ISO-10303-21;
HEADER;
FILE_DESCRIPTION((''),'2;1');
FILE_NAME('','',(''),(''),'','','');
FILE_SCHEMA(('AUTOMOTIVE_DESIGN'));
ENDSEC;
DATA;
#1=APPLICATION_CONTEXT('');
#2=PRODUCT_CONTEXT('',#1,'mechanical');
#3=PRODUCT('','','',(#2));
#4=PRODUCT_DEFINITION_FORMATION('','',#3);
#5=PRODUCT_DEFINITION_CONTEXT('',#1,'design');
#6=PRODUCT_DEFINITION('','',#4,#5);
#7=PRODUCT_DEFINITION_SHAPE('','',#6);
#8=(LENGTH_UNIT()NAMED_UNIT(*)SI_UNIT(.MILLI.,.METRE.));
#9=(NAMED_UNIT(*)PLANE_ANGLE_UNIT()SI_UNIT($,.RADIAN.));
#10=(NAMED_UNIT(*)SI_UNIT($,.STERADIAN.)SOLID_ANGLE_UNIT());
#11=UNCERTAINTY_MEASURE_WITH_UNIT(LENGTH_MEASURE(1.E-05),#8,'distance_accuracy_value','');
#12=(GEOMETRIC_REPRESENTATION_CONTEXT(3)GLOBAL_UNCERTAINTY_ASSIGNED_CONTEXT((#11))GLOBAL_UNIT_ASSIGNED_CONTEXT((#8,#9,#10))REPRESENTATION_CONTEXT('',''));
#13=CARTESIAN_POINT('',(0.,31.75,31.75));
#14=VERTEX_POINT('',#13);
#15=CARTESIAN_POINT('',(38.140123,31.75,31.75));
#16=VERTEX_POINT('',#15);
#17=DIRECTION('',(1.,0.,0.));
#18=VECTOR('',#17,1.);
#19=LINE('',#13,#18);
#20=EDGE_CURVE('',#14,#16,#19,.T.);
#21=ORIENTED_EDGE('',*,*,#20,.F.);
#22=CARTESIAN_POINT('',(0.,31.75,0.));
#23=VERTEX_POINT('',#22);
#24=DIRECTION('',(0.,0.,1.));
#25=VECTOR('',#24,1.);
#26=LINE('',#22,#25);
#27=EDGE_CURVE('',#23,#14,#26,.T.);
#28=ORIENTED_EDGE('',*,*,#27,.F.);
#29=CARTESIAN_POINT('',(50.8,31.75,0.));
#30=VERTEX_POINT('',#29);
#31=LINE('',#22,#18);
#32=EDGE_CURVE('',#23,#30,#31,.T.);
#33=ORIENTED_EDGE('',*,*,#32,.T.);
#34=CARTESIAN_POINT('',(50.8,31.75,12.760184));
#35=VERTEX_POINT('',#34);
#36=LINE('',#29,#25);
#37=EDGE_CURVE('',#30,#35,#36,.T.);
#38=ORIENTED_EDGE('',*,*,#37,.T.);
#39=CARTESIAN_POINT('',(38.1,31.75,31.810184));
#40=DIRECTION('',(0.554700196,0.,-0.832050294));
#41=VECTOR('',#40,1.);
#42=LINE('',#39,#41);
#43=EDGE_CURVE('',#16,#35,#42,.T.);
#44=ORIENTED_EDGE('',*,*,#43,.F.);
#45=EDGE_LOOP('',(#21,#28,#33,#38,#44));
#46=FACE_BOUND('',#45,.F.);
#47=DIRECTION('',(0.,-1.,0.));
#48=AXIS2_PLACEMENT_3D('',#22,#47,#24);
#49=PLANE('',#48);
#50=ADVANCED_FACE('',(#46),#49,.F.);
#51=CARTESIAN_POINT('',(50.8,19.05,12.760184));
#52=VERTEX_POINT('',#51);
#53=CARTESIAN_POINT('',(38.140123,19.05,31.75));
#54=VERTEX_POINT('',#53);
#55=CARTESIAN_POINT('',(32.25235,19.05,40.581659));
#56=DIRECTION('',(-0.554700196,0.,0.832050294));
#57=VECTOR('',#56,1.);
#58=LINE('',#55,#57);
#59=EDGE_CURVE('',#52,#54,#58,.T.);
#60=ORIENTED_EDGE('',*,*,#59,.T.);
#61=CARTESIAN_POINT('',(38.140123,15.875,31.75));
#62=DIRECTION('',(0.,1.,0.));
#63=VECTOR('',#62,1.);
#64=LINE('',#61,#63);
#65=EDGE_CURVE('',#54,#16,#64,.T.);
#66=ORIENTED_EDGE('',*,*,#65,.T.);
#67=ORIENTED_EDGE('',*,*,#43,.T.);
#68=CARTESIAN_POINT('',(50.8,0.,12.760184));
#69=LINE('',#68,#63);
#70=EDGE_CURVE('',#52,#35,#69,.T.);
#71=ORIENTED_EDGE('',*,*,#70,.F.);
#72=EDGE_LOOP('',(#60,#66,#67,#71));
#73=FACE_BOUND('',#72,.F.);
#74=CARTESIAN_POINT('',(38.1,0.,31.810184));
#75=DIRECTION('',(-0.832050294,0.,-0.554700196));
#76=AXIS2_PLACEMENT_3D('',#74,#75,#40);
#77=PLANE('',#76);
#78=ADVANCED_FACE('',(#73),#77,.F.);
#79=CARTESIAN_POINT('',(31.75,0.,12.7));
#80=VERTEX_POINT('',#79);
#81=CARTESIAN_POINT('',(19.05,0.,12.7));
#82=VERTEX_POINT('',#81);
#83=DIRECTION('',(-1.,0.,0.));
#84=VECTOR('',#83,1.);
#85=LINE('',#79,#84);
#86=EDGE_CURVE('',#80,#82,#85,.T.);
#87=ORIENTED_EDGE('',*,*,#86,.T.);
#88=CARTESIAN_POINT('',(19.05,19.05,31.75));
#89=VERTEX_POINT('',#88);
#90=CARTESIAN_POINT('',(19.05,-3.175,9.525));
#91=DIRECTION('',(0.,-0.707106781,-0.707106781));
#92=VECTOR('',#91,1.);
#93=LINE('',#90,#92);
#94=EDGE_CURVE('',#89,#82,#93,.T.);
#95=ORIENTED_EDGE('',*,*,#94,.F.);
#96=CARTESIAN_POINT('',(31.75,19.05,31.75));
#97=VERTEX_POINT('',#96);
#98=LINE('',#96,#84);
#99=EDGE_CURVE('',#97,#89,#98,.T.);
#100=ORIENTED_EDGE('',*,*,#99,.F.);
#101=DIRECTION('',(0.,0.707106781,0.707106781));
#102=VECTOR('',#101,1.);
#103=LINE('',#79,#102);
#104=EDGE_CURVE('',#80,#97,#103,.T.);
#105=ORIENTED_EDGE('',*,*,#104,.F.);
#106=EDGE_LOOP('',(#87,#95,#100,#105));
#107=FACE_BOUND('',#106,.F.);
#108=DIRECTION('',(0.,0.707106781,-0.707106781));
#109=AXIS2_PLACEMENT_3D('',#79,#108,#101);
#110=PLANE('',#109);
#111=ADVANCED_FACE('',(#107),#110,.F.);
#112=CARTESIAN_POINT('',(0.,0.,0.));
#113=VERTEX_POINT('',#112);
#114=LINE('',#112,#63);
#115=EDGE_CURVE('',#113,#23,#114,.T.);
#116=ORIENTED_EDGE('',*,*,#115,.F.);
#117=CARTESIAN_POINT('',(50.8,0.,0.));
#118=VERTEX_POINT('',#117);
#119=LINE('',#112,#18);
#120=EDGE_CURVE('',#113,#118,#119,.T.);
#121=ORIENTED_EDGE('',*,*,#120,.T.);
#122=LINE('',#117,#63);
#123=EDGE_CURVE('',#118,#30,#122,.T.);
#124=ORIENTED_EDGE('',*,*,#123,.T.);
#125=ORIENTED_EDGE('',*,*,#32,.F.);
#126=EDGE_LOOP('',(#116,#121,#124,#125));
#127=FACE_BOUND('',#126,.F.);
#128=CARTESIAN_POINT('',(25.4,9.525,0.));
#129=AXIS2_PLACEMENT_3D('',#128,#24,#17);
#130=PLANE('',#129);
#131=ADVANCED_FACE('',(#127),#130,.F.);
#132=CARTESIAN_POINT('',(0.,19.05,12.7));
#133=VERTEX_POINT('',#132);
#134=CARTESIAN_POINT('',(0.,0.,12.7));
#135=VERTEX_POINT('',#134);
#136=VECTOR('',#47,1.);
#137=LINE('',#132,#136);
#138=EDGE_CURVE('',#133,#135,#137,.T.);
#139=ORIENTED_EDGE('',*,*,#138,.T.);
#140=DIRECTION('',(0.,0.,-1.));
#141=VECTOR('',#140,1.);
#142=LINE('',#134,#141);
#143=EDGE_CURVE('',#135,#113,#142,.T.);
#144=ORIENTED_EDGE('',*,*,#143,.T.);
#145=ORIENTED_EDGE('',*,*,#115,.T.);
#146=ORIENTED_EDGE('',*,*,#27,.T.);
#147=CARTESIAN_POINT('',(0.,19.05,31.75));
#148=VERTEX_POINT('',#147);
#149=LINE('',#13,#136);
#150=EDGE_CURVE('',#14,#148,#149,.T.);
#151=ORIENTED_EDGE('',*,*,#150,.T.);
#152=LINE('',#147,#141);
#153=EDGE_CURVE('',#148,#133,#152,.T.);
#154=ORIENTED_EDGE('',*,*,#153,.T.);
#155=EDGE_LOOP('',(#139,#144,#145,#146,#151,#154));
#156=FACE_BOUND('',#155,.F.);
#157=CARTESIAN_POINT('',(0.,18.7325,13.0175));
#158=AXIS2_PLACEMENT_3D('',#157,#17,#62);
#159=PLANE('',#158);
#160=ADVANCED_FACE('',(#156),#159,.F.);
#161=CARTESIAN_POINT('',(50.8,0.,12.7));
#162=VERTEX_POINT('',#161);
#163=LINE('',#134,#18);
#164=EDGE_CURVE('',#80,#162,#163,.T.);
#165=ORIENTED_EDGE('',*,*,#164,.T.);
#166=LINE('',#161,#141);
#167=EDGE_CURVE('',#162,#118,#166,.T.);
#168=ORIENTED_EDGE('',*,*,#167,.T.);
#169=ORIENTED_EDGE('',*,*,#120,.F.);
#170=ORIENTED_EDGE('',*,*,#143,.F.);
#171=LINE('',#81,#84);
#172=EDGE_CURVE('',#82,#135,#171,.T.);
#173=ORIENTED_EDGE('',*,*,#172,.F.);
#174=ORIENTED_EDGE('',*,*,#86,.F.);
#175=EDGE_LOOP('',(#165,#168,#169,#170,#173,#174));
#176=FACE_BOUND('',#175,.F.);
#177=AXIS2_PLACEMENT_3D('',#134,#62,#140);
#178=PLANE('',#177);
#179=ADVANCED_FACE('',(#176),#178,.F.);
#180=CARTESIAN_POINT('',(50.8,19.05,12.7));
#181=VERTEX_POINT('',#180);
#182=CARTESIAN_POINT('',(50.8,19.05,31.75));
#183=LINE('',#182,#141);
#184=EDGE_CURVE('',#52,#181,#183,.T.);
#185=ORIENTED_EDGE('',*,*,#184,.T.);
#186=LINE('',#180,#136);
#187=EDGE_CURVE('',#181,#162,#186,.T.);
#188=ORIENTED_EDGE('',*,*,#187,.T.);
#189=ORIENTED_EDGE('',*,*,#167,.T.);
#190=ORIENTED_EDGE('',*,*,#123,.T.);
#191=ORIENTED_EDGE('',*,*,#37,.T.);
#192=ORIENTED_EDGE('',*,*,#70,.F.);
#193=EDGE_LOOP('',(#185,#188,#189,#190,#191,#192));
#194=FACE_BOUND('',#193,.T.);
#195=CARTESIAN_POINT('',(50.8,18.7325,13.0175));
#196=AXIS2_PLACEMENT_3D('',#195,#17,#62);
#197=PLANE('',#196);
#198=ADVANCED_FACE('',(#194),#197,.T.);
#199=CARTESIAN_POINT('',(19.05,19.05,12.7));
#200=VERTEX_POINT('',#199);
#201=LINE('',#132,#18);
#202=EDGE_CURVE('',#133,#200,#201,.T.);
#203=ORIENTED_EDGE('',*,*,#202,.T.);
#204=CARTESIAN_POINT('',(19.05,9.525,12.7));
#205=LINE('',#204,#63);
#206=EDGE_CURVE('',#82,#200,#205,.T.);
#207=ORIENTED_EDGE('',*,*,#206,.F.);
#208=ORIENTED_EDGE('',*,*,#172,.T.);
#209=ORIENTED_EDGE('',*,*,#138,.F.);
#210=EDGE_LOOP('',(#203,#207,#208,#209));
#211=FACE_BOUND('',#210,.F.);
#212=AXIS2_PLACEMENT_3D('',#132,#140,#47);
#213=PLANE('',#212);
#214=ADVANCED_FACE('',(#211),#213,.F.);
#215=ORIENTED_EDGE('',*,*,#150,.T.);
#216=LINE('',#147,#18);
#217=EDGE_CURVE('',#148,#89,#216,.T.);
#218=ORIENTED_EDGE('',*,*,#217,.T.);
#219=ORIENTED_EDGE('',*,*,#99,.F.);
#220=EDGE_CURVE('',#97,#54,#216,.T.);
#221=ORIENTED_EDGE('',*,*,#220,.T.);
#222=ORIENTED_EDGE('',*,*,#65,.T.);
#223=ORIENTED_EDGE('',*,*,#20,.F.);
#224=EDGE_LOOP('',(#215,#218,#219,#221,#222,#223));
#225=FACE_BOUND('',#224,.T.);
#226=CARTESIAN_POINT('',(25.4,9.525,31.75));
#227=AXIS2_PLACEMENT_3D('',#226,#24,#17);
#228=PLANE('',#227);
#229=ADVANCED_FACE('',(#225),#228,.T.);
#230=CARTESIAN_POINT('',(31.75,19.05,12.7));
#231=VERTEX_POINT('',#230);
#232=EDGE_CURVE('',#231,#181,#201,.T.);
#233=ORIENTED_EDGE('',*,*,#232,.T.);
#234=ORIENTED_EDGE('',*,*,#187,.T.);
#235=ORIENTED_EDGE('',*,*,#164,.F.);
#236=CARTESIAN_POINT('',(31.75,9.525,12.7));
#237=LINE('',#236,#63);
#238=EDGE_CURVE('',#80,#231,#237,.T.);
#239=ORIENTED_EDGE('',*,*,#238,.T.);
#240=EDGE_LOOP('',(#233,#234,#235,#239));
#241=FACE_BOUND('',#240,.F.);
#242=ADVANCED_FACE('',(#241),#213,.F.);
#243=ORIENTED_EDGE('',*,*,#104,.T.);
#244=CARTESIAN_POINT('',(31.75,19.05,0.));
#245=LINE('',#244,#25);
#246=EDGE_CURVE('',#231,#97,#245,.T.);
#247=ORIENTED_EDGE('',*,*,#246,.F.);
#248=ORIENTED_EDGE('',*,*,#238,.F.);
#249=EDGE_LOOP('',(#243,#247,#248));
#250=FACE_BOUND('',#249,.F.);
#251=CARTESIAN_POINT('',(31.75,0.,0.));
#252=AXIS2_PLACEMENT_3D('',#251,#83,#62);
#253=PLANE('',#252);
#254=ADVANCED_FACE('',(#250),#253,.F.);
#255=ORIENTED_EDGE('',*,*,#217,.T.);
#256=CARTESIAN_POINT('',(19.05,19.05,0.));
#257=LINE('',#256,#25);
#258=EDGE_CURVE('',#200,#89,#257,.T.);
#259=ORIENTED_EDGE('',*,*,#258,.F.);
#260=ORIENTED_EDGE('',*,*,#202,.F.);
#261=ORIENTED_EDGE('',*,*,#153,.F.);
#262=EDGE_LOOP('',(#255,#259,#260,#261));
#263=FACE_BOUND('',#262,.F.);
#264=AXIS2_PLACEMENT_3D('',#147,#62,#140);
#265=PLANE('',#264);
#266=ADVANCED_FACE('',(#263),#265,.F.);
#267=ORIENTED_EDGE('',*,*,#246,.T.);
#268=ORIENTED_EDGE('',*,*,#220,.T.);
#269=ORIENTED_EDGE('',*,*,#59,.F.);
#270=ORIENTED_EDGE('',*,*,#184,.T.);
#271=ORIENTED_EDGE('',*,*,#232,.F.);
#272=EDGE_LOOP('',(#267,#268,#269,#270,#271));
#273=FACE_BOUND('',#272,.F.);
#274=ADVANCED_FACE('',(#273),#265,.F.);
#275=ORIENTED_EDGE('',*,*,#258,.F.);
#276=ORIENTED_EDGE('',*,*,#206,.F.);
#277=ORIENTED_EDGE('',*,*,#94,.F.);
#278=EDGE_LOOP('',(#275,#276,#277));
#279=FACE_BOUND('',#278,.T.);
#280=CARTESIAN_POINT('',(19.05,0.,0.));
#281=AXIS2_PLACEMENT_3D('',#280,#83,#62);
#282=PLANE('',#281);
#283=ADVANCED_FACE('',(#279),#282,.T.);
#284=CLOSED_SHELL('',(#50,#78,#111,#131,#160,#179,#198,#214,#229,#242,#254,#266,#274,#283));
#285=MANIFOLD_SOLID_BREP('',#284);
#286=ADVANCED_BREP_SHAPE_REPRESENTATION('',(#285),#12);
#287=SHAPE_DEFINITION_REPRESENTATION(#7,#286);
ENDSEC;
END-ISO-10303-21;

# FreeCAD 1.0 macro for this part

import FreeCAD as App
import Part
import Sketcher

V = App.Vector
Q = App.Units.Quantity

doc = App.newDocument("Part")
body = doc.addObject("PartDesign::Body", "Body")

sketch1 = doc.addObject("Sketcher::SketchObject", "Sketch")
body.addObject(sketch1)
sketch1.AttachmentSupport = (doc.YZ_Plane, [""])
sketch1.MapMode = "FlatFace"
sketch1.addGeometry([
    Part.LineSegment(V(0, 13, 0), V(0, 0, 0)),
    Part.LineSegment(V(0, 0, 0), V(32, 0, 0)),
    Part.LineSegment(V(32, 0, 0), V(32, 32, 0)),
    Part.LineSegment(V(32, 32, 0), V(19, 32, 0)),
    Part.LineSegment(V(19, 32, 0), V(19, 13, 0)),
    Part.LineSegment(V(19, 13, 0), V(0, 13, 0)),
], False)
sketch1.addConstraint([
    Sketcher.Constraint("Coincident", 0, 2, 1, 1),
    Sketcher.Constraint("Coincident", 1, 2, 2, 1),
    Sketcher.Constraint("Coincident", 2, 2, 3, 1),
    Sketcher.Constraint("Coincident", 3, 2, 4, 1),
    Sketcher.Constraint("Coincident", 4, 2, 5, 1),
    Sketcher.Constraint("Coincident", 5, 2, 0, 1),
    Sketcher.Constraint("Vertical", 0),
    Sketcher.Constraint("Horizontal", 1),
    Sketcher.Constraint("Vertical", 2),
    Sketcher.Constraint("Horizontal", 3),
    Sketcher.Constraint("Vertical", 4),
    Sketcher.Constraint("Horizontal", 5),
    Sketcher.Constraint("Coincident", 0, 2, -1, 1),
    Sketcher.Constraint("Equal", 3, 0),
    Sketcher.Constraint("Equal", 1, 2),
    Sketcher.Constraint("DistanceX", 3, 2, 3, 1, Q("0.5 in")),
    Sketcher.Constraint("DistanceX", 1, 1, 1, 2, Q("1.25 in")),
])
pad1 = doc.addObject("PartDesign::Pad", "Pad")
body.addObject(pad1)
pad1.Profile = sketch1
pad1.Length = Q("2 in")

sketch2 = doc.addObject("Sketcher::SketchObject", "Sketch001")
body.addObject(sketch2)
sketch2.AttachmentSupport = (doc.XZ_Plane, [""])
sketch2.MapMode = "FlatFace"
sketch2.addGeometry([
    Part.LineSegment(V(51, 13, 0), V(51, 32, 0)),
    Part.LineSegment(V(51, 32, 0), V(38, 32, 0)),
    Part.LineSegment(V(38, 32, 0), V(51, 13, 0)),
], False)
sketch2.addConstraint([
    Sketcher.Constraint("Coincident", 0, 2, 1, 1),
    Sketcher.Constraint("Coincident", 1, 2, 2, 1),
    Sketcher.Constraint("Coincident", 2, 2, 0, 1),
    Sketcher.Constraint("Vertical", 0),
    Sketcher.Constraint("Horizontal", 1),
    Sketcher.Constraint("DistanceX", 1, 2, 1, 1, Q("0.5 in")),
    Sketcher.Constraint("DistanceX", -1, 1, 0, 2, Q("2 in")),
    Sketcher.Constraint("DistanceY", 0, 1, 0, 2, Q("0.75 in")),
    Sketcher.Constraint("DistanceY", -1, 1, 0, 2, 31.810184),
])
pocket1 = doc.addObject("PartDesign::Pocket", "Pocket")
body.addObject(pocket1)
pocket1.Profile = sketch2
pocket1.Length = Q("1.25 in")

sketch3 = doc.addObject("Sketcher::SketchObject", "Sketch002")
body.addObject(sketch3)
sketch3.AttachmentSupport = (doc.XY_Plane, [""])
sketch3.MapMode = "FlatFace"
sketch3.addGeometry([
    Part.LineSegment(V(19, 19, 0), V(19, 0, 0)),
    Part.LineSegment(V(19, 0, 0), V(32, 0, 0)),
    Part.LineSegment(V(32, 0, 0), V(32, 19, 0)),
    Part.LineSegment(V(32, 19, 0), V(19, 19, 0)),
], False)
sketch3.addConstraint([
    Sketcher.Constraint("Coincident", 0, 2, 1, 1),
    Sketcher.Constraint("Coincident", 1, 2, 2, 1),
    Sketcher.Constraint("Coincident", 2, 2, 3, 1),
    Sketcher.Constraint("Coincident", 3, 2, 0, 1),
    Sketcher.Constraint("Vertical", 0),
    Sketcher.Constraint("Horizontal", 1),
    Sketcher.Constraint("Vertical", 2),
    Sketcher.Constraint("Horizontal", 3),
    Sketcher.Constraint("PointOnObject", 0, 2, -1),
    Sketcher.Constraint("DistanceX", 1, 1, 1, 2, Q("0.5 in")),
    Sketcher.Constraint("DistanceY", 0, 2, 0, 1, Q("0.75 in")),
    Sketcher.Constraint("DistanceX", -1, 1, 0, 2, Q("0.75 in")),
])
pad2 = doc.addObject("PartDesign::Pad", "Pad001")
body.addObject(pad2)
pad2.Profile = sketch3
pad2.Length = Q("1.25 in")

sketch4 = doc.addObject("Sketcher::SketchObject", "Sketch003")
body.addObject(sketch4)
sketch4.AttachmentSupport = (doc.YZ_Plane, [""])
sketch4.MapMode = "FlatFace"
sketch4.AttachmentOffset = App.Placement(V(0, 0, 1.25 * 25.4), App.Rotation())
sketch4.addGeometry([
    Part.LineSegment(V(0, 13, 0), V(19, 32, 0)),
    Part.LineSegment(V(19, 32, 0), V(0, 32, 0)),
    Part.LineSegment(V(0, 32, 0), V(0, 13, 0)),
], False)
sketch4.addConstraint([
    Sketcher.Constraint("Coincident", 0, 2, 1, 1),
    Sketcher.Constraint("Coincident", 1, 2, 2, 1),
    Sketcher.Constraint("Coincident", 2, 2, 0, 1),
    Sketcher.Constraint("Horizontal", 1),
    Sketcher.Constraint("Vertical", 2),
    Sketcher.Constraint("PointOnObject", 1, 2, -2),
    Sketcher.Constraint("Equal", 1, 2),
    Sketcher.Constraint("DistanceX", 1, 2, 1, 1, Q("0.75 in")),
    Sketcher.Constraint("DistanceY", -1, 1, 2, 2, Q("0.5 in")),
])
pocket2 = doc.addObject("PartDesign::Pocket", "Pocket001")
body.addObject(pocket2)
pocket2.Profile = sketch4
pocket2.Length = Q("1 in")

doc.recompute()
